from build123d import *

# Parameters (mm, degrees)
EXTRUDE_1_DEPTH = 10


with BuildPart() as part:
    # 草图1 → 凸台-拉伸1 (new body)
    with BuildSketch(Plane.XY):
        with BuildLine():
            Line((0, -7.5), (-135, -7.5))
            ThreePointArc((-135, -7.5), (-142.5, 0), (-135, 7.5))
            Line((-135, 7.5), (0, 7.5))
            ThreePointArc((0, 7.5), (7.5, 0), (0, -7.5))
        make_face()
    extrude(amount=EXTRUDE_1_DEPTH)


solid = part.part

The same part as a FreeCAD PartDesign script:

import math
import FreeCAD as App
import Part
import Sketcher

V = App.Vector
Q = App.Units.Quantity

doc = App.newDocument("Part")
body = doc.addObject("PartDesign::Body", "Body")

sketch1 = doc.addObject("Sketcher::SketchObject", "Sketch")
body.addObject(sketch1)
sketch1.AttachmentSupport = (doc.XY_Plane, [""])
sketch1.MapMode = "FlatFace"
sketch1.addGeometry(Part.LineSegment(V(-135, -8, 0), V(0, -8, 0)), False)
sketch1.addGeometry(Part.ArcOfCircle(Part.Circle(V(0, 0, 0), V(0, 0, 1), 8), math.radians(-90), math.radians(90)), False)
sketch1.addGeometry(Part.LineSegment(V(0, 8, 0), V(-135, 8, 0)), False)
sketch1.addGeometry(Part.ArcOfCircle(Part.Circle(V(-135, 0, 0), V(0, 0, 1), 8), math.radians(90), math.radians(270)), False)
sketch1.addConstraint(Sketcher.Constraint("Tangent", 0, 2, 1, 1))
sketch1.addConstraint(Sketcher.Constraint("Tangent", 1, 2, 2, 1))
sketch1.addConstraint(Sketcher.Constraint("Tangent", 2, 2, 3, 1))
sketch1.addConstraint(Sketcher.Constraint("Tangent", 3, 2, 0, 1))
sketch1.addConstraint(Sketcher.Constraint("Horizontal", 0))
sketch1.addConstraint(Sketcher.Constraint("Horizontal", 2))
sketch1.addConstraint(Sketcher.Constraint("Coincident", 1, 3, -1, 1))
sketch1.addConstraint(Sketcher.Constraint("Radius", 1, Q("7.5 mm")))
sketch1.addConstraint(Sketcher.Constraint("DistanceX", 0, 1, 0, 2, Q("135 mm")))
pad1 = doc.addObject("PartDesign::Pad", "Pad")
body.addObject(pad1)
pad1.Profile = sketch1
pad1.Length = 10

doc.recompute()
